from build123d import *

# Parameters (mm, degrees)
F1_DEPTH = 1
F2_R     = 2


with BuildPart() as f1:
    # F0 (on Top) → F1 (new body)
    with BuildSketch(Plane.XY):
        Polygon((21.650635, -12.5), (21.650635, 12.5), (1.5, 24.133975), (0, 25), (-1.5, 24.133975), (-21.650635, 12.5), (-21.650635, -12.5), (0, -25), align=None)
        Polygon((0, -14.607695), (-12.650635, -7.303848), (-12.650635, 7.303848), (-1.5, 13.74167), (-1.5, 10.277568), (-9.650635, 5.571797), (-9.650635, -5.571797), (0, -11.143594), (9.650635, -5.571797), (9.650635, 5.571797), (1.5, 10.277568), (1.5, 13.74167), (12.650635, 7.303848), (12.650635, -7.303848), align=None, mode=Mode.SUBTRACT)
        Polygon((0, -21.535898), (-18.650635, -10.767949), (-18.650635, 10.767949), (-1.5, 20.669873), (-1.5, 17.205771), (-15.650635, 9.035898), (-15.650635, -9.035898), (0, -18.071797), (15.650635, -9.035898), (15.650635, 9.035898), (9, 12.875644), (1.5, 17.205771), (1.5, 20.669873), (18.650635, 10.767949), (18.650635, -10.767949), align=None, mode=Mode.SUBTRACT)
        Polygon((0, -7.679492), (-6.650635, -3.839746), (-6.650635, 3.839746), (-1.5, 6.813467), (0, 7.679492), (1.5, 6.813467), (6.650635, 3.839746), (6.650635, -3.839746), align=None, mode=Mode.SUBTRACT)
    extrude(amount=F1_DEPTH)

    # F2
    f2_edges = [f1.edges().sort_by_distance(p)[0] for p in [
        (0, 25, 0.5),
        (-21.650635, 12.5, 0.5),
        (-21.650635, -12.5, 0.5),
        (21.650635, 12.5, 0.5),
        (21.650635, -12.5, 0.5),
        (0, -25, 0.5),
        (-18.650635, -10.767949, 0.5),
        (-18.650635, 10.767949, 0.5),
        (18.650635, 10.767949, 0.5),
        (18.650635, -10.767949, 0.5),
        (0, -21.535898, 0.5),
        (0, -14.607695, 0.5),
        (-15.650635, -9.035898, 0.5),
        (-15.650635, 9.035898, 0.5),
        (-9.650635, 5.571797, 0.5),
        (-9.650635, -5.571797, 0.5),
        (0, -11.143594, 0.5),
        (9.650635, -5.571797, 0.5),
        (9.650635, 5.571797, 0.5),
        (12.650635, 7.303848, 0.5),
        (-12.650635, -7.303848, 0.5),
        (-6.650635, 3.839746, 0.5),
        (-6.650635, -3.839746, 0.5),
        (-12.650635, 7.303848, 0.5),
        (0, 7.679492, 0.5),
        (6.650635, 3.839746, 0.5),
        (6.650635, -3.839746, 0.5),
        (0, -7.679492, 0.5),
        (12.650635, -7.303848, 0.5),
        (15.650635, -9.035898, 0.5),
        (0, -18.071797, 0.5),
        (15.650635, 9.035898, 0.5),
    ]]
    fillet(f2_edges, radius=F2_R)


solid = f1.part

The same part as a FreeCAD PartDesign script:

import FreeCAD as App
import Part
import Sketcher

V = App.Vector
Q = App.Units.Quantity


def edges_at(feature, points):
    """Names of the edges that pass closest to the given points."""
    edges = feature.Shape.Edges
    near = lambda p: min(range(len(edges)), key=lambda i: edges[i].distToShape(Part.Vertex(*p))[0])
    return sorted({f"Edge{near(p) + 1}" for p in points})

doc = App.newDocument("Part")
body = doc.addObject("PartDesign::Body", "Body")

sketch1 = body.newObject("Sketcher::SketchObject", "Sketch")
sketch1.AttachmentSupport = (doc.getObject("XY_Plane"), [""])
sketch1.MapMode = "FlatFace"
sketch1.addGeometry([
    Part.LineSegment(V(21.650635, -12.5, 0), V(21.650635, 12.5, 0)),
    Part.LineSegment(V(21.650635, 12.5, 0), V(1.5, 24.133975, 0)),
    Part.LineSegment(V(1.5, 24.133975, 0), V(0, 25, 0)),
    Part.LineSegment(V(0, 25, 0), V(-1.5, 24.133975, 0)),
    Part.LineSegment(V(-1.5, 24.133975, 0), V(-21.650635, 12.5, 0)),
    Part.LineSegment(V(-21.650635, 12.5, 0), V(-21.650635, -12.5, 0)),
    Part.LineSegment(V(-21.650635, -12.5, 0), V(0, -25, 0)),
    Part.LineSegment(V(0, -25, 0), V(21.650635, -12.5, 0)),
    Part.LineSegment(V(12.650635, -7.303848, 0), V(0, -14.607695, 0)),
    Part.LineSegment(V(0, -14.607695, 0), V(-12.650635, -7.303848, 0)),
    Part.LineSegment(V(-12.650635, -7.303848, 0), V(-12.650635, 7.303848, 0)),
    Part.LineSegment(V(-12.650635, 7.303848, 0), V(-1.5, 13.74167, 0)),
    Part.LineSegment(V(-1.5, 13.74167, 0), V(-1.5, 10.277568, 0)),
    Part.LineSegment(V(-1.5, 10.277568, 0), V(-9.650635, 5.571797, 0)),
    Part.LineSegment(V(-9.650635, 5.571797, 0), V(-9.650635, -5.571797, 0)),
    Part.LineSegment(V(-9.650635, -5.571797, 0), V(0, -11.143594, 0)),
    Part.LineSegment(V(0, -11.143594, 0), V(9.650635, -5.571797, 0)),
    Part.LineSegment(V(9.650635, -5.571797, 0), V(9.650635, 5.571797, 0)),
    Part.LineSegment(V(9.650635, 5.571797, 0), V(1.5, 10.277568, 0)),
    Part.LineSegment(V(1.5, 10.277568, 0), V(1.5, 13.74167, 0)),
    Part.LineSegment(V(1.5, 13.74167, 0), V(12.650635, 7.303848, 0)),
    Part.LineSegment(V(12.650635, 7.303848, 0), V(12.650635, -7.303848, 0)),
    Part.LineSegment(V(18.650635, -10.767949, 0), V(0, -21.535898, 0)),
    Part.LineSegment(V(0, -21.535898, 0), V(-18.650635, -10.767949, 0)),
    Part.LineSegment(V(-18.650635, -10.767949, 0), V(-18.650635, 10.767949, 0)),
    Part.LineSegment(V(-18.650635, 10.767949, 0), V(-1.5, 20.669873, 0)),
    Part.LineSegment(V(-1.5, 20.669873, 0), V(-1.5, 17.205771, 0)),
    Part.LineSegment(V(-1.5, 17.205771, 0), V(-15.650635, 9.035898, 0)),
    Part.LineSegment(V(-15.650635, 9.035898, 0), V(-15.650635, -9.035898, 0)),
    Part.LineSegment(V(-15.650635, -9.035898, 0), V(0, -18.071797, 0)),
    Part.LineSegment(V(0, -18.071797, 0), V(15.650635, -9.035898, 0)),
    Part.LineSegment(V(15.650635, -9.035898, 0), V(15.650635, 9.035898, 0)),
    Part.LineSegment(V(15.650635, 9.035898, 0), V(9, 12.875644, 0)),
    Part.LineSegment(V(9, 12.875644, 0), V(1.5, 17.205771, 0)),
    Part.LineSegment(V(1.5, 17.205771, 0), V(1.5, 20.669873, 0)),
    Part.LineSegment(V(1.5, 20.669873, 0), V(18.650635, 10.767949, 0)),
    Part.LineSegment(V(18.650635, 10.767949, 0), V(18.650635, -10.767949, 0)),
    Part.LineSegment(V(6.650635, -3.839746, 0), V(0, -7.679492, 0)),
    Part.LineSegment(V(0, -7.679492, 0), V(-6.650635, -3.839746, 0)),
    Part.LineSegment(V(-6.650635, -3.839746, 0), V(-6.650635, 3.839746, 0)),
    Part.LineSegment(V(-6.650635, 3.839746, 0), V(-1.5, 6.813467, 0)),
    Part.LineSegment(V(-1.5, 6.813467, 0), V(0, 7.679492, 0)),
    Part.LineSegment(V(0, 7.679492, 0), V(1.5, 6.813467, 0)),
    Part.LineSegment(V(1.5, 6.813467, 0), V(6.650635, 3.839746, 0)),
    Part.LineSegment(V(6.650635, 3.839746, 0), V(6.650635, -3.839746, 0)),
], False)
sketch1.addConstraint([
    Sketcher.Constraint("Coincident", 0, 2, 1, 1),
    Sketcher.Constraint("Coincident", 1, 2, 2, 1),
    Sketcher.Constraint("Coincident", 2, 2, 3, 1),
    Sketcher.Constraint("Coincident", 3, 2, 4, 1),
    Sketcher.Constraint("Coincident", 4, 2, 5, 1),
    Sketcher.Constraint("Coincident", 5, 2, 6, 1),
    Sketcher.Constraint("Coincident", 6, 2, 7, 1),
    Sketcher.Constraint("Coincident", 7, 2, 0, 1),
    Sketcher.Constraint("Coincident", 8, 2, 9, 1),
    Sketcher.Constraint("Coincident", 9, 2, 10, 1),
    Sketcher.Constraint("Coincident", 10, 2, 11, 1),
    Sketcher.Constraint("Coincident", 11, 2, 12, 1),
    Sketcher.Constraint("Coincident", 12, 2, 13, 1),
    Sketcher.Constraint("Coincident", 13, 2, 14, 1),
    Sketcher.Constraint("Coincident", 14, 2, 15, 1),
    Sketcher.Constraint("Coincident", 15, 2, 16, 1),
    Sketcher.Constraint("Coincident", 16, 2, 17, 1),
    Sketcher.Constraint("Coincident", 17, 2, 18, 1),
    Sketcher.Constraint("Coincident", 18, 2, 19, 1),
    Sketcher.Constraint("Coincident", 19, 2, 20, 1),
    Sketcher.Constraint("Coincident", 20, 2, 21, 1),
    Sketcher.Constraint("Coincident", 21, 2, 8, 1),
    Sketcher.Constraint("Coincident", 22, 2, 23, 1),
    Sketcher.Constraint("Coincident", 23, 2, 24, 1),
    Sketcher.Constraint("Coincident", 24, 2, 25, 1),
    Sketcher.Constraint("Coincident", 25, 2, 26, 1),
    Sketcher.Constraint("Coincident", 26, 2, 27, 1),
    Sketcher.Constraint("Coincident", 27, 2, 28, 1),
    Sketcher.Constraint("Coincident", 28, 2, 29, 1),
    Sketcher.Constraint("Coincident", 29, 2, 30, 1),
    Sketcher.Constraint("Coincident", 30, 2, 31, 1),
    Sketcher.Constraint("Coincident", 31, 2, 32, 1),
    Sketcher.Constraint("Coincident", 32, 2, 33, 1),
    Sketcher.Constraint("Coincident", 33, 2, 34, 1),
    Sketcher.Constraint("Coincident", 34, 2, 35, 1),
    Sketcher.Constraint("Coincident", 35, 2, 36, 1),
    Sketcher.Constraint("Coincident", 36, 2, 22, 1),
    Sketcher.Constraint("Coincident", 37, 2, 38, 1),
    Sketcher.Constraint("Coincident", 38, 2, 39, 1),
    Sketcher.Constraint("Coincident", 39, 2, 40, 1),
    Sketcher.Constraint("Coincident", 40, 2, 41, 1),
    Sketcher.Constraint("Coincident", 41, 2, 42, 1),
    Sketcher.Constraint("Coincident", 42, 2, 43, 1),
    Sketcher.Constraint("Coincident", 43, 2, 44, 1),
    Sketcher.Constraint("Coincident", 44, 2, 37, 1),
    Sketcher.Constraint("Vertical", 0),
    Sketcher.Constraint("Vertical", 5),
    Sketcher.Constraint("Vertical", 10),
    Sketcher.Constraint("Vertical", 12),
    Sketcher.Constraint("Vertical", 14),
    Sketcher.Constraint("Vertical", 17),
    Sketcher.Constraint("Vertical", 19),
    Sketcher.Constraint("Vertical", 21),
    Sketcher.Constraint("Vertical", 24),
    Sketcher.Constraint("Vertical", 26),
    Sketcher.Constraint("Vertical", 28),
    Sketcher.Constraint("Vertical", 31),
    Sketcher.Constraint("Vertical", 34),
    Sketcher.Constraint("Vertical", 36),
    Sketcher.Constraint("Vertical", 39),
    Sketcher.Constraint("Vertical", 44),
    Sketcher.Constraint("Symmetric", 0, 2, 5, 2, -1, 1),
    Sketcher.Constraint("Symmetric", 2, 2, 6, 2, -1, 1),
    Sketcher.Constraint("Symmetric", 13, 2, 16, 2, -1, 1),
    Sketcher.Constraint("Symmetric", 9, 2, 20, 2, -1, 1),
    Sketcher.Constraint("Symmetric", 27, 2, 30, 2, -1, 1),
    Sketcher.Constraint("Symmetric", 23, 2, 35, 2, -1, 1),
    Sketcher.Constraint("Symmetric", 37, 2, 41, 2, -1, 1),
    Sketcher.Constraint("Symmetric", 38, 2, 43, 2, -1, 1),
    Sketcher.Constraint("Symmetric", 1, 2, 3, 2, -2),
    Sketcher.Constraint("Symmetric", 12, 2, 18, 2, -2),
    Sketcher.Constraint("Symmetric", 26, 2, 33, 2, -2),
    Sketcher.Constraint("Symmetric", 40, 2, 42, 2, -2),
    Sketcher.Constraint("PointOnObject", 2, 2, -2),
    Sketcher.Constraint("PointOnObject", 8, 2, -2),
    Sketcher.Constraint("PointOnObject", 15, 2, -2),
    Sketcher.Constraint("PointOnObject", 22, 2, -2),
    Sketcher.Constraint("PointOnObject", 29, 2, -2),
    Sketcher.Constraint("PointOnObject", 37, 2, -2),
    Sketcher.Constraint("Parallel", 1, 2),
    Sketcher.Constraint("Parallel", 3, 4),
    Sketcher.Constraint("Parallel", 4, 7),
    Sketcher.Constraint("Parallel", 7, 8),
    Sketcher.Constraint("Parallel", 6, 9),
    Sketcher.Constraint("Parallel", 8, 11),
    Sketcher.Constraint("Parallel", 11, 13),
    Sketcher.Constraint("Parallel", 9, 15),
    Sketcher.Constraint("Parallel", 13, 16),
    Sketcher.Constraint("Parallel", 15, 18),
    Sketcher.Constraint("Parallel", 18, 20),
    Sketcher.Constraint("Parallel", 16, 22),
    Sketcher.Constraint("Parallel", 20, 23),
    Sketcher.Constraint("Parallel", 22, 25),
    Sketcher.Constraint("Parallel", 25, 27),
    Sketcher.Constraint("Parallel", 23, 29),
    Sketcher.Constraint("Parallel", 27, 30),
    Sketcher.Constraint("Parallel", 29, 32),
    Sketcher.Constraint("Parallel", 32, 33),
    Sketcher.Constraint("Parallel", 33, 35),
    Sketcher.Constraint("Parallel", 30, 37),
    Sketcher.Constraint("Parallel", 35, 38),
    Sketcher.Constraint("Parallel", 37, 40),
    Sketcher.Constraint("Parallel", 40, 41),
    Sketcher.Constraint("Horizontal", 11, 2, 19, 2),
    Sketcher.Constraint("Horizontal", 25, 2, 34, 2),
    Sketcher.Constraint("Vertical", 3, 2, 11, 2),
    Sketcher.Constraint("Vertical", 12, 2, 25, 2),
    Sketcher.Constraint("Vertical", 26, 2, 40, 2),
    Sketcher.Constraint("Equal", 19, 26),
    Sketcher.Constraint("Equal", 32, 37),
    Sketcher.Constraint("DistanceY", 0, 1, 0, 2, 25.0),
    Sketcher.Constraint("Angle", 1, Q("149.999999 deg")),
    Sketcher.Constraint("Distance", 6, 25.0),
    Sketcher.Constraint("DistanceX", -1, 1, 32, 2, 9.0),
    Sketcher.Constraint("DistanceX", 3, 2, 1, 2, 3.0),
    Sketcher.Constraint("DistanceX", 5, 2, 9, 2, 9.0),
    Sketcher.Constraint("DistanceX", 10, 2, 13, 2, 3.0),
    Sketcher.Constraint("DistanceX", 5, 2, 23, 2, 3.0),
    Sketcher.Constraint("DistanceX", 27, 2, 10, 2, 3.0),
    Sketcher.Constraint("DistanceY", 29, 2, 14, 2, 12.5),
    Sketcher.Constraint("DistanceY", 12, 2, 12, 1, 3.464102),
    Sketcher.Constraint("DistanceY", 39, 1, 39, 2, 7.679492),
    Sketcher.Constraint("DistanceY", 40, 2, 12, 2, 3.464101),
])
pad1 = body.newObject("PartDesign::Pad", "Pad")
pad1.Profile = sketch1
pad1.Length = 1
doc.recompute()

fillet = body.newObject("PartDesign::Fillet", "Fillet")
fillet.Base = (pad1, edges_at(pad1, [
    (0, 25, 0.5),
    (-21.651, 12.5, 0.5),
    (-21.651, -12.5, 0.5),
    (21.651, 12.5, 0.5),
    (21.651, -12.5, 0.5),
    (0, -25, 0.5),
    (-18.651, -10.768, 0.5),
    (-18.651, 10.768, 0.5),
    (18.651, 10.768, 0.5),
    (18.651, -10.768, 0.5),
    (0, -21.536, 0.5),
    (0, -14.608, 0.5),
    (-15.651, -9.036, 0.5),
    (-15.651, 9.036, 0.5),
    (-9.651, 5.572, 0.5),
    (-9.651, -5.572, 0.5),
    (0, -11.144, 0.5),
    (9.651, -5.572, 0.5),
    (9.651, 5.572, 0.5),
    (12.651, 7.304, 0.5),
    (-12.651, -7.304, 0.5),
    (-6.651, 3.84, 0.5),
    (-6.651, -3.84, 0.5),
    (-12.651, 7.304, 0.5),
    (0, 7.679, 0.5),
    (6.651, 3.84, 0.5),
    (6.651, -3.84, 0.5),
    (0, -7.679, 0.5),
    (12.651, -7.304, 0.5),
    (15.651, -9.036, 0.5),
    (0, -18.072, 0.5),
    (15.651, 9.036, 0.5),
]))
fillet.Radius = 2

doc.recompute()
